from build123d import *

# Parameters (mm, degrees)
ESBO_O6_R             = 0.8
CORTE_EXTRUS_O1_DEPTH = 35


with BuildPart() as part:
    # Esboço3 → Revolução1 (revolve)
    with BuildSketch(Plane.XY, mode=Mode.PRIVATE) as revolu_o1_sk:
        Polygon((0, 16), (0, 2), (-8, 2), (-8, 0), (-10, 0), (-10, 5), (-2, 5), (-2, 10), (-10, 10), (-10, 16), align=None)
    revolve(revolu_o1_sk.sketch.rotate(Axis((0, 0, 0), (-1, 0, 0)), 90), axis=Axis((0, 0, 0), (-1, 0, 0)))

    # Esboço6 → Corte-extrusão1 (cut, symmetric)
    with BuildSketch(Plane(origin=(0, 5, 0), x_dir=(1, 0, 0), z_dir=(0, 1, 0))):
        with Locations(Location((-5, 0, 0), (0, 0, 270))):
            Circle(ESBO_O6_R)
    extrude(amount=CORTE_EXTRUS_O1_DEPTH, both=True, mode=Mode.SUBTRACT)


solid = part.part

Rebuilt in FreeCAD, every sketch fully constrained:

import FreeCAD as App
import Part
import Sketcher
from FreeCAD import Vector


def add_polygon(sketch, points):
    """Adds a closed chain of lines whose ends are joined by coincident constraints."""
    first, n = sketch.GeometryCount, len(points)
    for a, b in zip(points, points[1:] + points[:1]):
        sketch.addGeometry(Part.LineSegment(App.Vector(*a, 0), App.Vector(*b, 0)), False)
    for i in range(n):
        sketch.addConstraint(Sketcher.Constraint("Coincident", first + i, 2, first + (i + 1) % n, 1))

doc = App.newDocument("Part")
body = doc.addObject("PartDesign::Body", "Body")

# Sketch on XY plane
sketch1 = body.newObject("Sketcher::SketchObject", "Sketch")
sketch1.AttachmentSupport = (doc.getObject("XY_Plane"), [""])
sketch1.MapMode = "FlatFace"
add_polygon(sketch1, [(0, 2), (0, 16), (-10, 16), (-10, 10), (-2, 10), (-2, 5), (-10, 5), (-10, 0), (-8, 0), (-8, 2)])  # lines 0-9
sketch1.addConstraint(Sketcher.Constraint("Vertical", 0))
sketch1.addConstraint(Sketcher.Constraint("Horizontal", 1))
sketch1.addConstraint(Sketcher.Constraint("Vertical", 2))
sketch1.addConstraint(Sketcher.Constraint("Horizontal", 3))
sketch1.addConstraint(Sketcher.Constraint("Vertical", 4))
sketch1.addConstraint(Sketcher.Constraint("Horizontal", 5))
sketch1.addConstraint(Sketcher.Constraint("Vertical", 6))
sketch1.addConstraint(Sketcher.Constraint("Horizontal", 7))
sketch1.addConstraint(Sketcher.Constraint("Vertical", 8))
sketch1.addConstraint(Sketcher.Constraint("Horizontal", 9))
sketch1.addConstraint(Sketcher.Constraint("PointOnObject", 0, 2, -2))
sketch1.addConstraint(Sketcher.Constraint("PointOnObject", 6, 2, -1))
sketch1.addConstraint(Sketcher.Constraint("Vertical", 2, 2, 5, 2))
sketch1.addConstraint(Sketcher.Constraint("Equal", 5, 9))
sketch1.addConstraint(Sketcher.Constraint("Equal", 4, 6))
sketch1.addConstraint(Sketcher.Constraint("Equal", 7, 8))
sketch1.addConstraint(Sketcher.Constraint("DistanceX", 1, 2, 1, 1, 10.0))
sketch1.addConstraint(Sketcher.Constraint("DistanceX", 3, 1, 3, 2, 8.0))
sketch1.addConstraint(Sketcher.Constraint("DistanceY", 0, 1, 0, 2, 14.0))
sketch1.addConstraint(Sketcher.Constraint("DistanceY", 2, 2, 2, 1, 6.0))
revolution = body.newObject("PartDesign::Revolution", "Revolution")
revolution.Profile = sketch1
revolution.ReferenceAxis = (sketch1, ["H_Axis"])
revolution.Angle = 360

# Sketch on XZ plane
sketch2 = body.newObject("Sketcher::SketchObject", "Sketch001")
sketch2.AttachmentSupport = (doc.getObject("XZ_Plane"), [""])
sketch2.MapMode = "FlatFace"
sketch2.AttachmentOffset = App.Placement(Vector(0, 0, -5), App.Rotation())
sketch2.addGeometry(Part.Circle(Vector(-5, 0, 0), Vector(0, 0, 1), 0.8), False)
sketch2.addConstraint(Sketcher.Constraint("PointOnObject", 0, 3, -1))
sketch2.addConstraint(Sketcher.Constraint("Diameter", 0, 1.6))
sketch2.addConstraint(Sketcher.Constraint("DistanceX", 0, 3, -1, 1, 5.0))
pocket1 = body.newObject("PartDesign::Pocket", "Pocket")
pocket1.Profile = sketch2
pocket1.Length = 70
pocket1.Midplane = True

doc.recompute()
